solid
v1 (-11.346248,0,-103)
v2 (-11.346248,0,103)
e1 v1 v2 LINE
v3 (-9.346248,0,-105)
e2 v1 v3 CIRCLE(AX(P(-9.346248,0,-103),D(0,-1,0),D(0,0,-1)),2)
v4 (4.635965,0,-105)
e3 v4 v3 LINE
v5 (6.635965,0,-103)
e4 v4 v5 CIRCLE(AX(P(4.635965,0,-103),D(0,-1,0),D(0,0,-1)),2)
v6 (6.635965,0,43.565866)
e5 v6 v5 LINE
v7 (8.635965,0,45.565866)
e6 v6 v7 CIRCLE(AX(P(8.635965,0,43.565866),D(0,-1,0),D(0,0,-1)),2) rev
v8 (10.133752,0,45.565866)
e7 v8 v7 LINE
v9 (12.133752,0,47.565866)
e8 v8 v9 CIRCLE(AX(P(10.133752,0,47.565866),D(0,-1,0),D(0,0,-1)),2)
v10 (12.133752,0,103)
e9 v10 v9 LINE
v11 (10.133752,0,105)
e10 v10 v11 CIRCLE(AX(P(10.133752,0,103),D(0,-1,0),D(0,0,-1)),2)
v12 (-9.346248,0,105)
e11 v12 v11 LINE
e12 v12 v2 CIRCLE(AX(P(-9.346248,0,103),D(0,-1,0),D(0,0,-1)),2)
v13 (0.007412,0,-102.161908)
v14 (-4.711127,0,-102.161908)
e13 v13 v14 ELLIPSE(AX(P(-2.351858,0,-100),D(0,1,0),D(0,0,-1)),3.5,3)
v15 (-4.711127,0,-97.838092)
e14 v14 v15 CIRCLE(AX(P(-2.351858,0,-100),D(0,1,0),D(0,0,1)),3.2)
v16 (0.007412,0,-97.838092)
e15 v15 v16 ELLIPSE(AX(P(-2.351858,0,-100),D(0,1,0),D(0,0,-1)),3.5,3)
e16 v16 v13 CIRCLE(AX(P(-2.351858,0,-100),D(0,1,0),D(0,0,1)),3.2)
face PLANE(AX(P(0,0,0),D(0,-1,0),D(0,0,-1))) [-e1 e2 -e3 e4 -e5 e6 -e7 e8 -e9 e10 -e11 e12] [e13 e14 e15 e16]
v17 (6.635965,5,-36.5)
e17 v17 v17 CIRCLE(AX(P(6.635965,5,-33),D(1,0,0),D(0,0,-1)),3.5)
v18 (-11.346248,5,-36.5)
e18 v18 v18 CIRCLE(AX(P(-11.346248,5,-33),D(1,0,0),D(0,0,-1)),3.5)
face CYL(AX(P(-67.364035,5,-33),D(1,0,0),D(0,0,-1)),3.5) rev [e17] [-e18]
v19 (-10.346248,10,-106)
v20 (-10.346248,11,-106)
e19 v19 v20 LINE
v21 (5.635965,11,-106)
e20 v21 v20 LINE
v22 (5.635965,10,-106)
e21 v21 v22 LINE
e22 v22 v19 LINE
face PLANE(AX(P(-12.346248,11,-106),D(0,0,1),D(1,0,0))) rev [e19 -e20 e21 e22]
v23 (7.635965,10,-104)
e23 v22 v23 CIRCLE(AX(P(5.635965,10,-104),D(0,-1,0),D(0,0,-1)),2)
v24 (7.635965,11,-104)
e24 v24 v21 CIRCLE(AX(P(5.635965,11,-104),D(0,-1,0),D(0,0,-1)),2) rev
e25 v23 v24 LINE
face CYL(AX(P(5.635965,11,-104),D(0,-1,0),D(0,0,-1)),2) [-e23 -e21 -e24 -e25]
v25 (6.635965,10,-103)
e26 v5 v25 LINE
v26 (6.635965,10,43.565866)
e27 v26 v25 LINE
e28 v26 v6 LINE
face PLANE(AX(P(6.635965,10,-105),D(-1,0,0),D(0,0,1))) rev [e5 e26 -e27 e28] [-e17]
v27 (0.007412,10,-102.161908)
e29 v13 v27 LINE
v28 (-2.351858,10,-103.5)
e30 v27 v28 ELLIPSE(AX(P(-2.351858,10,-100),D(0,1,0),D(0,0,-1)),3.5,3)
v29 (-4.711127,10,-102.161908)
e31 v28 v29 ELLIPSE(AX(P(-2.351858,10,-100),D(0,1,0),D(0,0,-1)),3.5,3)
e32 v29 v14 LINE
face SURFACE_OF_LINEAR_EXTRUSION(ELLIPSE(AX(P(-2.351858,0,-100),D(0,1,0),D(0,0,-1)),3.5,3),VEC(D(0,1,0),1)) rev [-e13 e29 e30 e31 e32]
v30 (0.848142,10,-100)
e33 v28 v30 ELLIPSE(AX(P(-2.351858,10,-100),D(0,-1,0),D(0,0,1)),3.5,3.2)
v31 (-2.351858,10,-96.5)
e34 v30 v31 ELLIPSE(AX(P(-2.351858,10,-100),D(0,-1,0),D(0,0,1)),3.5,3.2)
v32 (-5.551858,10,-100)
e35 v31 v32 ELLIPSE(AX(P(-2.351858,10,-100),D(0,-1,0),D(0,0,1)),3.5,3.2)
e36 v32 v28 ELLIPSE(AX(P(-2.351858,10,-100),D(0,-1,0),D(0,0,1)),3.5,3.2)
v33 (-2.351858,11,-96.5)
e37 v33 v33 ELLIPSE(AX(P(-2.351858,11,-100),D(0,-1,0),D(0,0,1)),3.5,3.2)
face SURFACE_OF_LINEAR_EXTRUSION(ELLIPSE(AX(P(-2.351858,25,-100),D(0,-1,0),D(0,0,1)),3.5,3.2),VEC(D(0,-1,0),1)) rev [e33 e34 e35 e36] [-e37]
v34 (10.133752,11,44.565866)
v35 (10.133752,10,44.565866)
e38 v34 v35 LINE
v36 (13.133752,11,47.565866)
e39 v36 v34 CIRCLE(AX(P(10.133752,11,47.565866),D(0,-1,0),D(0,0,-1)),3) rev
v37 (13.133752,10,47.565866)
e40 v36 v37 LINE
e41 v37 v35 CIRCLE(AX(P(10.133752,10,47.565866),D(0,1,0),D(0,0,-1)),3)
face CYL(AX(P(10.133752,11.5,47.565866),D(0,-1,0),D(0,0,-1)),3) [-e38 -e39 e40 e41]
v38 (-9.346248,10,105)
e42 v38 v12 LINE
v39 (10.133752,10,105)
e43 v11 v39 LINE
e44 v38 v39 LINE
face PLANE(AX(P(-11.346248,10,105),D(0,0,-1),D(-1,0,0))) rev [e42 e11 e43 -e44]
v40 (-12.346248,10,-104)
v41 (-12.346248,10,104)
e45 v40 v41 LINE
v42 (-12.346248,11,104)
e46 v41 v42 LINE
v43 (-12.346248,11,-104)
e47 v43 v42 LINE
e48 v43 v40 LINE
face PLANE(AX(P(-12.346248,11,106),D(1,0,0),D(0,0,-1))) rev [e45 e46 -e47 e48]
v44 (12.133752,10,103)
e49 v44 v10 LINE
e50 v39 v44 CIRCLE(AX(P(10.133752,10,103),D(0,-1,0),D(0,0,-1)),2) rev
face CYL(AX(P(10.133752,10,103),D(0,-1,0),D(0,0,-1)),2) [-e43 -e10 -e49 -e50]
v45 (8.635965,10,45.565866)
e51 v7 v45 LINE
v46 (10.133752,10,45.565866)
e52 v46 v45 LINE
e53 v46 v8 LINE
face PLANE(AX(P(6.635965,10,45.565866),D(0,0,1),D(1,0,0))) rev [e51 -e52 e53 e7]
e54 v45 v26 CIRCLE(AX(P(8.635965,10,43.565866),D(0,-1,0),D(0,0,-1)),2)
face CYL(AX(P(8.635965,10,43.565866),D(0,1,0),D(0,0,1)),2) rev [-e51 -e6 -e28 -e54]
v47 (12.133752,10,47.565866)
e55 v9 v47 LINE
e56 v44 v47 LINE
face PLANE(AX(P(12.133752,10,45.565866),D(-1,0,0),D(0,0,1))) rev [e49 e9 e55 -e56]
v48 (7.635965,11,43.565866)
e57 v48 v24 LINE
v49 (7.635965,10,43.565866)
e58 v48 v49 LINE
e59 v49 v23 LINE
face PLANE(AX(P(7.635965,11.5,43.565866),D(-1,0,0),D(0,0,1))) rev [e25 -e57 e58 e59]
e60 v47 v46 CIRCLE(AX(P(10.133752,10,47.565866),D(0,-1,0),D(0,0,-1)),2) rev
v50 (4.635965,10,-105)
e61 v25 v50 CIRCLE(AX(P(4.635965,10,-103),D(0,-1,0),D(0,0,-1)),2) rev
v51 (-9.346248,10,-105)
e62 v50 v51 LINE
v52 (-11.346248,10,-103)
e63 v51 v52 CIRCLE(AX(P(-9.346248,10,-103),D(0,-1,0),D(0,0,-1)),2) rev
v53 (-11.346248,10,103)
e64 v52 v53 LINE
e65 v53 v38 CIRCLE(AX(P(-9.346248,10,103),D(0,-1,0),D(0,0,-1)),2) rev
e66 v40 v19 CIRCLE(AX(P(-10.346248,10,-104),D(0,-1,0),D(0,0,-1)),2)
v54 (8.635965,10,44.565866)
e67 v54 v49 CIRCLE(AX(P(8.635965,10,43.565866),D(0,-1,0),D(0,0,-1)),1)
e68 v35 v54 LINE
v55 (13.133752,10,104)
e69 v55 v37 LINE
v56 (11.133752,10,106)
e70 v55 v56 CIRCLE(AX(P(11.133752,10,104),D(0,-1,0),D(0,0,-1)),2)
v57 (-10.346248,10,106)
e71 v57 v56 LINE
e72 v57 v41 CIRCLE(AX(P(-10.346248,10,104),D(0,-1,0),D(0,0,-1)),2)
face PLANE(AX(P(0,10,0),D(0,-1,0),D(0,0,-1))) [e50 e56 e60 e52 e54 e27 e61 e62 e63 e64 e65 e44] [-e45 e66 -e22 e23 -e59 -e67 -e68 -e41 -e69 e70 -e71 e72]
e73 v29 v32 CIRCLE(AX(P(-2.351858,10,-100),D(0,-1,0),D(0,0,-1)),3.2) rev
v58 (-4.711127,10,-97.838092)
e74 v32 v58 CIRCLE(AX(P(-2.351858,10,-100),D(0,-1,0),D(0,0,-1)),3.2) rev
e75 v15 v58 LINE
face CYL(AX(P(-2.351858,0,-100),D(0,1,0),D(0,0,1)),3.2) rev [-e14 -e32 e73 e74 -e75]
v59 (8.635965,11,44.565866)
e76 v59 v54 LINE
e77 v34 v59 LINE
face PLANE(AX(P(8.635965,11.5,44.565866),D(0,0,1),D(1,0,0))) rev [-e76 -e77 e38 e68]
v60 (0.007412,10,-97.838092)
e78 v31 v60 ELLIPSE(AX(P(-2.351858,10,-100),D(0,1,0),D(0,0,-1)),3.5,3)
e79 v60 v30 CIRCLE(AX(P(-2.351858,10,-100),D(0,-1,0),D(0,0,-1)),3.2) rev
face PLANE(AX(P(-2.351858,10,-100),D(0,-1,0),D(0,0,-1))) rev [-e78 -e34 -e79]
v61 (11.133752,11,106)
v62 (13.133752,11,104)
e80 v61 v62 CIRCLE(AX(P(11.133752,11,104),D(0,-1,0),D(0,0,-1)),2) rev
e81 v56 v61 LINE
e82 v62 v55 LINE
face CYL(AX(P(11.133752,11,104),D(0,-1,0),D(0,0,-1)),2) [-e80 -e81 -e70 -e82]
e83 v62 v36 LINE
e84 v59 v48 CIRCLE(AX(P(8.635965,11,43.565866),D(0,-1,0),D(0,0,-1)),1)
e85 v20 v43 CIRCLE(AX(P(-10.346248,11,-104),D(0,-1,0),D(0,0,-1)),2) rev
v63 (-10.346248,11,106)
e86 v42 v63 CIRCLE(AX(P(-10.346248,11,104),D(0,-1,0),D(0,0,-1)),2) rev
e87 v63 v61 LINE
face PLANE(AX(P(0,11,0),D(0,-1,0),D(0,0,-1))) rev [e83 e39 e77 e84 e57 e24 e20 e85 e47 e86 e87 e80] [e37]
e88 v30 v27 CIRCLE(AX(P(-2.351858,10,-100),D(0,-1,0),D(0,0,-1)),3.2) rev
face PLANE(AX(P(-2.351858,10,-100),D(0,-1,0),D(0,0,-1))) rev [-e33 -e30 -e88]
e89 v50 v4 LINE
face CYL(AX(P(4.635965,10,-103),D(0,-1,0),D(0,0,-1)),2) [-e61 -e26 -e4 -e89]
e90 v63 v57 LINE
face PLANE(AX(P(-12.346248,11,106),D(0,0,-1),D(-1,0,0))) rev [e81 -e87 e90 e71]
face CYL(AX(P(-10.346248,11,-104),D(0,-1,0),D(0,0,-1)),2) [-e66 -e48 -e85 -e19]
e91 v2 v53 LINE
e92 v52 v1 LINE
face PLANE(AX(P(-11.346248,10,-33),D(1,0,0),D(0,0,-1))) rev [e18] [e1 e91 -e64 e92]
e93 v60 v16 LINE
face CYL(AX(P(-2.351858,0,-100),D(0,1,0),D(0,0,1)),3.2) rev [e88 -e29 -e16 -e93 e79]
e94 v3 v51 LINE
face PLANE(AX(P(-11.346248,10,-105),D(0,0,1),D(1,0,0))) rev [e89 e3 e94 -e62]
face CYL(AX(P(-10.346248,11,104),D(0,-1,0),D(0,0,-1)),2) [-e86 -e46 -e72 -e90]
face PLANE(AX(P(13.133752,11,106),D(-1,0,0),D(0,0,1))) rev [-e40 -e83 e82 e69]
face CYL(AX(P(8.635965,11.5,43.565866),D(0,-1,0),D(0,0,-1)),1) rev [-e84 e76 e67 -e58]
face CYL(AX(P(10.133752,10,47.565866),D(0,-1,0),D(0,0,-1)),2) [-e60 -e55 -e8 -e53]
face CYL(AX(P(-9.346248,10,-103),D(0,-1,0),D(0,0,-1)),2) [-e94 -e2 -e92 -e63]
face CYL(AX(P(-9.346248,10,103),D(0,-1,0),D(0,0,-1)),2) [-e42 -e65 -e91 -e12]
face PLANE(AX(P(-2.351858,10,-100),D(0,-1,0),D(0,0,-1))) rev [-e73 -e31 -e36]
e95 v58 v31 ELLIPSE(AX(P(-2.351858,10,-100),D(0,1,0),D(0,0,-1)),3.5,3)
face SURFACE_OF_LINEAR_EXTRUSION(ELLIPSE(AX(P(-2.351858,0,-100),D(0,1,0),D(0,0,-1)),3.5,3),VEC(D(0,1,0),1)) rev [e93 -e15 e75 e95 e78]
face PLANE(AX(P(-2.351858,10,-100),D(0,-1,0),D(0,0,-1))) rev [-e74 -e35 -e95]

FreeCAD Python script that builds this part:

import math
import FreeCAD as App
import Part
import Sketcher


def edges_at(feature, points):
    """Names of the edges that pass closest to the given points."""
    edges = feature.Shape.Edges
    near = lambda p: min(range(len(edges)), key=lambda i: edges[i].distToShape(Part.Vertex(*p))[0])
    return sorted({f"Edge{near(p) + 1}" for p in points})


def add_polygon(sketch, points):
    """Adds a closed chain of lines whose ends are joined by coincident constraints."""
    first, n = sketch.GeometryCount, len(points)
    for a, b in zip(points, points[1:] + points[:1]):
        sketch.addGeometry(Part.LineSegment(App.Vector(*a, 0), App.Vector(*b, 0)), False)
    for i in range(n):
        sketch.addConstraint(Sketcher.Constraint("Coincident", first + i, 2, first + (i + 1) % n, 1))

doc = App.newDocument("Part")
body = doc.addObject("PartDesign::Body", "Body")

sketch1 = doc.addObject("Sketcher::SketchObject", "Sketch")
body.addObject(sketch1)
sketch1.AttachmentSupport = (doc.XZ_Plane, [""])
sketch1.MapMode = "FlatFace"
add_polygon(sketch1, [(-11.346248, 105), (12.133752, 105), (12.133752, 45.565866), (6.635965, 45.565866), (6.635965, -105), (-11.346248, -105)])
sketch1.addConstraint(Sketcher.Constraint("Horizontal", 0))
sketch1.addConstraint(Sketcher.Constraint("Vertical", 1))
sketch1.addConstraint(Sketcher.Constraint("Horizontal", 2))
sketch1.addConstraint(Sketcher.Constraint("Vertical", 3))
sketch1.addConstraint(Sketcher.Constraint("Horizontal", 4))
sketch1.addConstraint(Sketcher.Constraint("Vertical", 5))
sketch1.addConstraint(Sketcher.Constraint("DistanceY", 5, 1, 5, 2, 210.0))
sketch1.addConstraint(Sketcher.Constraint("DistanceY", -1, 1, 0, 2, 105.0))
sketch1.addConstraint(Sketcher.Constraint("DistanceX", 0, 1, 0, 2, 23.48))
sketch1.addConstraint(Sketcher.Constraint("DistanceX", 2, 2, 2, 1, 5.497786))
sketch1.addConstraint(Sketcher.Constraint("DistanceY", 1, 2, 1, 1, 59.434134))
sketch1.addConstraint(Sketcher.Constraint("DistanceX", -1, 1, 0, 2, 12.133752))
pad1 = doc.addObject("PartDesign::Pad", "Pad")
body.addObject(pad1)
pad1.Profile = sketch1
pad1.Length = 10
pad1.Reversed = True

sketch2 = doc.addObject("Sketcher::SketchObject", "Sketch001")
body.addObject(sketch2)
sketch2.AttachmentSupport = (doc.YZ_Plane, [""])
sketch2.MapMode = "FlatFace"
sketch2.AttachmentOffset = App.Placement(App.Vector(0, 0, 6.635965), App.Rotation())
sketch2.addGeometry(Part.Circle(App.Vector(5, -33, 0), App.Vector(0, 0, 1), 3.5), False)
sketch2.addConstraint(Sketcher.Constraint("Diameter", 0, 7.0))
sketch2.addConstraint(Sketcher.Constraint("DistanceX", -1, 1, 0, 3, 5.0))
sketch2.addConstraint(Sketcher.Constraint("DistanceY", 0, 3, -1, 1, 33.0))
pocket1 = doc.addObject("PartDesign::Pocket", "Pocket")
body.addObject(pocket1)
pocket1.Profile = sketch2
pocket1.Length = 74

sketch3 = doc.addObject("Sketcher::SketchObject", "Sketch002")
body.addObject(sketch3)
sketch3.AttachmentSupport = (doc.XZ_Plane, [""])
sketch3.MapMode = "FlatFace"
sketch3.AttachmentOffset = App.Placement(App.Vector(0, 0, -10), App.Rotation())
sketch3.addGeometry(Part.Ellipse(App.Vector(-2.351858, -103.5, 0), App.Vector(0.648142, -100, 0), App.Vector(-2.351858, -100, 0)), False)
sketch3.addConstraint(Sketcher.Constraint("Block", 0))
pocket2 = doc.addObject("PartDesign::Pocket", "Pocket001")
body.addObject(pocket2)
pocket2.Profile = sketch3
pocket2.Length = 10
pocket2.Reversed = True

sketch4 = doc.addObject("Sketcher::SketchObject", "Sketch003")
body.addObject(sketch4)
sketch4.AttachmentSupport = (doc.XZ_Plane, [""])
sketch4.MapMode = "FlatFace"
sketch4.AttachmentOffset = App.Placement(App.Vector(0, 0, -10), App.Rotation())
sketch4.addGeometry(Part.Circle(App.Vector(-2.351858, -100, 0), App.Vector(0, 0, 1), 3.2), False)
sketch4.addConstraint(Sketcher.Constraint("Diameter", 0, 6.4))
sketch4.addConstraint(Sketcher.Constraint("DistanceY", 0, 3, -1, 1, 100.0))
sketch4.addConstraint(Sketcher.Constraint("DistanceX", 0, 3, -1, 1, 2.351858))
pocket3 = doc.addObject("PartDesign::Pocket", "Pocket002")
body.addObject(pocket3)
pocket3.Profile = sketch4
pocket3.Length = 10
pocket3.Reversed = True
doc.recompute()

fillet = doc.addObject("PartDesign::Fillet", "Fillet")
body.addObject(fillet)
fillet.Base = (pocket3, edges_at(pocket3, [
    (-11.346, 5, -105),
    (6.636, 5, -105),
    (6.636, 5, 45.566),
    (12.134, 5, 45.566),
    (12.134, 5, 105),
    (-11.346, 5, 105),
]))
fillet.Radius = 2

sketch5 = doc.addObject("Sketcher::SketchObject", "Sketch004")
body.addObject(sketch5)
sketch5.AttachmentSupport = (doc.XZ_Plane, [""])
sketch5.MapMode = "FlatFace"
sketch5.AttachmentOffset = App.Placement(App.Vector(0, 0, -10), App.Rotation())
add_polygon(sketch5, [(-12.346248, -106), (-12.346248, 106), (13.133752, 106), (13.133752, -106)])
sketch5.addConstraint(Sketcher.Constraint("Vertical", 0))
sketch5.addConstraint(Sketcher.Constraint("Horizontal", 1))
sketch5.addConstraint(Sketcher.Constraint("Vertical", 2))
sketch5.addConstraint(Sketcher.Constraint("Horizontal", 3))
sketch5.addConstraint(Sketcher.Constraint("DistanceY", 0, 1, 0, 2, 212.0))
sketch5.addConstraint(Sketcher.Constraint("DistanceY", -1, 1, 0, 2, 106.0))
sketch5.addConstraint(Sketcher.Constraint("DistanceX", 1, 1, 1, 2, 25.48))
sketch5.addConstraint(Sketcher.Constraint("DistanceX", 0, 2, -1, 1, 12.346248))
pad2 = doc.addObject("PartDesign::Pad", "Pad001")
body.addObject(pad2)
pad2.Profile = sketch5
pad2.Length = 1
pad2.Reversed = True
doc.recompute()

fillet2 = doc.addObject("PartDesign::Fillet", "Fillet001")
body.addObject(fillet2)
fillet2.Base = (pad2, edges_at(pad2, [
    (-12.346, 10.5, -106),
    (-12.346, 10.5, 106),
    (13.134, 10.5, 106),
    (13.134, 10.5, -106),
]))
fillet2.Radius = 2

sketch6 = doc.addObject("Sketcher::SketchObject", "Sketch005")
body.addObject(sketch6)
sketch6.AttachmentSupport = (doc.XZ_Plane, [""])
sketch6.MapMode = "FlatFace"
sketch6.AttachmentOffset = App.Placement(App.Vector(0, 0, -10), App.Rotation())
sketch6.addGeometry(Part.LineSegment(App.Vector(7.635965, 43.565866, 0), App.Vector(7.635965, -107.135147, 0)), False)
sketch6.addGeometry(Part.LineSegment(App.Vector(7.635965, -107.135147, 0), App.Vector(14.314001, -107.135147, 0)), False)
sketch6.addGeometry(Part.LineSegment(App.Vector(14.314001, -107.135147, 0), App.Vector(14.314001, 43.565866, 0)), False)
sketch6.addGeometry(Part.LineSegment(App.Vector(14.314001, 43.565866, 0), App.Vector(13.133752, 47.565866, 0)), False)
sketch6.addGeometry(Part.ArcOfCircle(Part.Circle(App.Vector(10.133752, 47.565866, 0), App.Vector(0, 0, 1), 3), math.radians(-90), math.radians(0)), False)
sketch6.addGeometry(Part.LineSegment(App.Vector(10.133752, 44.565866, 0), App.Vector(8.635965, 44.565866, 0)), False)
sketch6.addGeometry(Part.ArcOfCircle(Part.Circle(App.Vector(8.635965, 43.565866, 0), App.Vector(0, 0, 1), 1), math.radians(90), math.radians(180)), False)
sketch6.addConstraint(Sketcher.Constraint("Coincident", 0, 2, 1, 1))
sketch6.addConstraint(Sketcher.Constraint("Coincident", 1, 2, 2, 1))
sketch6.addConstraint(Sketcher.Constraint("Coincident", 2, 2, 3, 1))
sketch6.addConstraint(Sketcher.Constraint("Coincident", 3, 2, 4, 2))
sketch6.addConstraint(Sketcher.Constraint("Tangent", 4, 1, 5, 1))
sketch6.addConstraint(Sketcher.Constraint("Tangent", 5, 2, 6, 1))
sketch6.addConstraint(Sketcher.Constraint("Tangent", 6, 2, 0, 1))
sketch6.addConstraint(Sketcher.Constraint("Vertical", 0))
sketch6.addConstraint(Sketcher.Constraint("Horizontal", 1))
sketch6.addConstraint(Sketcher.Constraint("Vertical", 2))
sketch6.addConstraint(Sketcher.Constraint("Horizontal", 5))
sketch6.addConstraint(Sketcher.Constraint("Horizontal", 6, 3, 2, 2))
sketch6.addConstraint(Sketcher.Constraint("Horizontal", 4, 3, 3, 2))
sketch6.addConstraint(Sketcher.Constraint("Radius", 4, 3.0))
sketch6.addConstraint(Sketcher.Constraint("Radius", 6, 1.0))
sketch6.addConstraint(Sketcher.Constraint("DistanceX", -1, 1, 1, 2, 14.314001))
sketch6.addConstraint(Sketcher.Constraint("Distance", 3, 4.17049))
sketch6.addConstraint(Sketcher.Constraint("DistanceX", 1, 1, 1, 2, 6.678036))
sketch6.addConstraint(Sketcher.Constraint("DistanceY", 0, 2, 0, 1, 150.701014))
sketch6.addConstraint(Sketcher.Constraint("DistanceY", -1, 1, 4, 3, 47.565866))
pocket4 = doc.addObject("PartDesign::Pocket", "Pocket003")
body.addObject(pocket4)
pocket4.Profile = sketch6
pocket4.Length = 1.5
doc.recompute()

fillet3 = doc.addObject("PartDesign::Fillet", "Fillet002")
body.addObject(fillet3)
fillet3.Base = (pocket4, edges_at(pocket4, [(7.636, 10.5, -106)]))
fillet3.Radius = 2

sketch7 = doc.addObject("Sketcher::SketchObject", "Sketch006")
body.addObject(sketch7)
sketch7.AttachmentSupport = (doc.XZ_Plane, [""])
sketch7.MapMode = "FlatFace"
sketch7.AttachmentOffset = App.Placement(App.Vector(0, 0, -15), App.Rotation())
sketch7.addGeometry(Part.Circle(App.Vector(-2.351858, -100, 0), App.Vector(0, 0, 1), 3.2), False)
sketch7.addConstraint(Sketcher.Constraint("Diameter", 0, 6.4))
sketch7.addConstraint(Sketcher.Constraint("DistanceY", 0, 3, -1, 1, 100.0))
sketch7.addConstraint(Sketcher.Constraint("DistanceX", 0, 3, -1, 1, 2.351858))
pocket5 = doc.addObject("PartDesign::Pocket", "Pocket004")
body.addObject(pocket5)
pocket5.Profile = sketch7
pocket5.Length = 15
pocket5.Reversed = True

sketch8 = doc.addObject("Sketcher::SketchObject", "Sketch007")
body.addObject(sketch8)
sketch8.AttachmentSupport = (doc.XZ_Plane, [""])
sketch8.MapMode = "FlatFace"
sketch8.AttachmentOffset = App.Placement(App.Vector(0, 0, -10), App.Rotation())
sketch8.addGeometry(Part.Ellipse(App.Vector(-2.351858, -96.5, 0), App.Vector(-5.551858, -100, 0), App.Vector(-2.351858, -100, 0)), False)
sketch8.addConstraint(Sketcher.Constraint("Block", 0))
pocket6 = doc.addObject("PartDesign::Pocket", "Pocket005")
body.addObject(pocket6)
pocket6.Profile = sketch8
pocket6.Length = 15

doc.recompute()
